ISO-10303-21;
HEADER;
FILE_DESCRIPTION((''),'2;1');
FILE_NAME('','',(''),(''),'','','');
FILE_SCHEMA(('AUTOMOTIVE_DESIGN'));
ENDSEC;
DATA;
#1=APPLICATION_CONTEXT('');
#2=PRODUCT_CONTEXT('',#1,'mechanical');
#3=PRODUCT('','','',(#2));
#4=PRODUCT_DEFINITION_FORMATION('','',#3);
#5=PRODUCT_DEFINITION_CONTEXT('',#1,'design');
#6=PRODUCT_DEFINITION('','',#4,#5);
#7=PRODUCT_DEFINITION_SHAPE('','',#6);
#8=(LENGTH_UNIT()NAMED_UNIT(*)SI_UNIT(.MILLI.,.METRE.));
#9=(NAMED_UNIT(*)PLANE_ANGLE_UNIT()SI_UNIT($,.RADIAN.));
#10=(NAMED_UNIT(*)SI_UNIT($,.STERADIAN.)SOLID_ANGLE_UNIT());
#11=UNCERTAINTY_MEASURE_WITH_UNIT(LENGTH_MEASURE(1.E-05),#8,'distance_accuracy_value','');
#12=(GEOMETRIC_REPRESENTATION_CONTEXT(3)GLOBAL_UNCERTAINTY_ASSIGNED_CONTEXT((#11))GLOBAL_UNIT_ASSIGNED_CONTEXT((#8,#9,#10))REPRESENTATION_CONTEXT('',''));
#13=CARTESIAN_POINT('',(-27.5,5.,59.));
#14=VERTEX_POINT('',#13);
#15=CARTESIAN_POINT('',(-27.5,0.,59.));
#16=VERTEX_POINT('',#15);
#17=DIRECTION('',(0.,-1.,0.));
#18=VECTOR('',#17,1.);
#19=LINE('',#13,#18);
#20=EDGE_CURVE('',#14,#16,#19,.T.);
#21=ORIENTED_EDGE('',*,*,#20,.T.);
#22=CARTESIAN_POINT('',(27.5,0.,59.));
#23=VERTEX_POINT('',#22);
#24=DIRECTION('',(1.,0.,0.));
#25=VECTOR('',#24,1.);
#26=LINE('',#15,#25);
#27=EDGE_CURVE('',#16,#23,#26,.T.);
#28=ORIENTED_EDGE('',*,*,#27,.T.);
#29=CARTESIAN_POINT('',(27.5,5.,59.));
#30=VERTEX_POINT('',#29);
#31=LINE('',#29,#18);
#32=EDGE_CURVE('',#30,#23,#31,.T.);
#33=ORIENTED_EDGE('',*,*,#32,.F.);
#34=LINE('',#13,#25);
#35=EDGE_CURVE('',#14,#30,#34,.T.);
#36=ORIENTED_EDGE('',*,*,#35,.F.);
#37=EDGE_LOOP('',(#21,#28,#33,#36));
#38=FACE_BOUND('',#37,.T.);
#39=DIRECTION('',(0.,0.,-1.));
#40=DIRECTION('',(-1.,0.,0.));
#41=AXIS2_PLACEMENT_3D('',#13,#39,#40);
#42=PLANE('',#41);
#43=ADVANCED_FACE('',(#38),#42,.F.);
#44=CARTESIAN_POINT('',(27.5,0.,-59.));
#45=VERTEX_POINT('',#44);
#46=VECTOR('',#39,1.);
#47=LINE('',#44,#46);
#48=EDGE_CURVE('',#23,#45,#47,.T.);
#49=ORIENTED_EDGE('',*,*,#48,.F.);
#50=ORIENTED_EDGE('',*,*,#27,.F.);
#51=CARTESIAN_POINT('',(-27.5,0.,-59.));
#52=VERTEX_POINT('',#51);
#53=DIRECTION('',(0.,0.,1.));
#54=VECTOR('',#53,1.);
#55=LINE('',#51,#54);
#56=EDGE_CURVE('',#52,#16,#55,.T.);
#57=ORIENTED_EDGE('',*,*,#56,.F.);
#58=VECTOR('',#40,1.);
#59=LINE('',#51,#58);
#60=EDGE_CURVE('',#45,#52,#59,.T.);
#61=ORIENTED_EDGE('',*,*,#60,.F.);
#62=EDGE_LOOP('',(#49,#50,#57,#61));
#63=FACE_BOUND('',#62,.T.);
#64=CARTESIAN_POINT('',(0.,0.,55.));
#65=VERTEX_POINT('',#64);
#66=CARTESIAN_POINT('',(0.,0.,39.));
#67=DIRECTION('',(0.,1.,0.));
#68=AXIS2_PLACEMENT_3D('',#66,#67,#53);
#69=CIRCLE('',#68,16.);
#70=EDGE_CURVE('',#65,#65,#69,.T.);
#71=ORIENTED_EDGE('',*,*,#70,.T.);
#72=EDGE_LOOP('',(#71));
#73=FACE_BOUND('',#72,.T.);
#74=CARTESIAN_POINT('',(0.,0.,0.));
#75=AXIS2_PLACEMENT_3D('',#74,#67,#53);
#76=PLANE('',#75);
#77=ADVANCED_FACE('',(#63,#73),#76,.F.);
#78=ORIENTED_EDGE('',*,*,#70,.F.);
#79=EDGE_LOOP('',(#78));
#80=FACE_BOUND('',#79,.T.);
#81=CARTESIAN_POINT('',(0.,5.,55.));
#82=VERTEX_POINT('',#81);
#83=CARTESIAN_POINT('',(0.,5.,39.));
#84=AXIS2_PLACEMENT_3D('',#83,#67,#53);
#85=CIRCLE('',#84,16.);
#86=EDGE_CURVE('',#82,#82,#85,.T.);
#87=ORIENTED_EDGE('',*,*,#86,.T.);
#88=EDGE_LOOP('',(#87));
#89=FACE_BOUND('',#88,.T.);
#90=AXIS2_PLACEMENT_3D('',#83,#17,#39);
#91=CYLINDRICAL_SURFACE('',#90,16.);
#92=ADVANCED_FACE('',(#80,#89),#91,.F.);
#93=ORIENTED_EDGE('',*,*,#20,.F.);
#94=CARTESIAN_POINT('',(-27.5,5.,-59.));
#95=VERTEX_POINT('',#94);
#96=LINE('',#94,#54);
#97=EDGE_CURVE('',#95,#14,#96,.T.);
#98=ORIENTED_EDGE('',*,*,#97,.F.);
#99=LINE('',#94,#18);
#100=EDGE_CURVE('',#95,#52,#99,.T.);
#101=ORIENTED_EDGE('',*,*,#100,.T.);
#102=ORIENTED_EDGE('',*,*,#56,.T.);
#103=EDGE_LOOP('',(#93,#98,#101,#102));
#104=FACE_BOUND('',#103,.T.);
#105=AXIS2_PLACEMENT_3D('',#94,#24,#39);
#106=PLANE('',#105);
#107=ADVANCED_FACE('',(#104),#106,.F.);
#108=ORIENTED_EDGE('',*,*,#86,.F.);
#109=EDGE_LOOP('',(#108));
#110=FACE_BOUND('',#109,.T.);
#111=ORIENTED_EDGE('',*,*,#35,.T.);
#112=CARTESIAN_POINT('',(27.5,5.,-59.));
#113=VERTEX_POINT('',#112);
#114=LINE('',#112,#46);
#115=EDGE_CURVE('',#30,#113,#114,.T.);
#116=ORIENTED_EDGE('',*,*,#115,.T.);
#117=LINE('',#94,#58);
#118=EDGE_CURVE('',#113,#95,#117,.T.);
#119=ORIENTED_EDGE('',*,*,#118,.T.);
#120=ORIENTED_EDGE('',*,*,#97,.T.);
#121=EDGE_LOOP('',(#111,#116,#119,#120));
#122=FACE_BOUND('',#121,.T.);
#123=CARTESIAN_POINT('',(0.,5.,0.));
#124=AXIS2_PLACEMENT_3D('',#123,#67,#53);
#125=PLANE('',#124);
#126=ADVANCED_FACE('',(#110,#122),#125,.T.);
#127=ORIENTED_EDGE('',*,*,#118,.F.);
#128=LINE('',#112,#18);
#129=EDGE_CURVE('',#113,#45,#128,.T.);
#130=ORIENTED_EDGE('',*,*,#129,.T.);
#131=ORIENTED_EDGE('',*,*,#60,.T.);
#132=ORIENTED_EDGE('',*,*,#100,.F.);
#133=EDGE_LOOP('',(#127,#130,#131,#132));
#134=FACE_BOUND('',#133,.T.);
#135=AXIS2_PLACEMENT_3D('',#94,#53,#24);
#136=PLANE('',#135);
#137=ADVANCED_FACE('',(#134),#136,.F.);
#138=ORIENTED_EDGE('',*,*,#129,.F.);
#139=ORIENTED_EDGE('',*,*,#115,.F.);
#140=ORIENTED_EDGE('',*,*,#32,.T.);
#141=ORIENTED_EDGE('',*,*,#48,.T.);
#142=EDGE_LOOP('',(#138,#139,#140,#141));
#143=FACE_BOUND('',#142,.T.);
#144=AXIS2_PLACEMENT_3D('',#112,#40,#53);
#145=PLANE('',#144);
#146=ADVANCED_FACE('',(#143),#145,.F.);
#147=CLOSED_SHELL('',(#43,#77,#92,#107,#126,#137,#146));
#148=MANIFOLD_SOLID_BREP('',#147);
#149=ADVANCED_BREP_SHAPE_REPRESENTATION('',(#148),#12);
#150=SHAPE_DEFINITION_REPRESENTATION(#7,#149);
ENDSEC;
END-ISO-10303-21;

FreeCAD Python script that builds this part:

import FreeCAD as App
import Part
import Sketcher
from FreeCAD import Vector
Q = App.Units.Quantity

doc = App.newDocument("Part")
params = doc.addObject("Spreadsheet::Sheet", "Params")
for row, (alias, value) in enumerate([
    ("sketch1_diameter", "32 mm"),
    ("sketch1_width", "55 mm"),
    ("sketch1_height", "118 mm"),
    ("pad1_length", "5 mm"),
], start=1):
    params.set(f"A{row}", alias)
    params.set(f"B{row}", "=" + value)
    params.setAlias(f"B{row}", alias)

body = doc.addObject("PartDesign::Body", "Body")

sketch1 = body.newObject("Sketcher::SketchObject", "Sketch")
sketch1.AttachmentSupport = (doc.getObject("XZ_Plane"), [""])
sketch1.MapMode = "FlatFace"
sketch1.addGeometry([
    Part.LineSegment(Vector(-27.5, -59, 0), Vector(-27.5, 59, 0)),
    Part.LineSegment(Vector(-27.5, 59, 0), Vector(27.5, 59, 0)),
    Part.LineSegment(Vector(27.5, 59, 0), Vector(27.5, -59, 0)),
    Part.LineSegment(Vector(27.5, -59, 0), Vector(-27.5, -59, 0)),
    Part.Circle(Vector(0, 39, 0), Vector(0, 0, 1), 16),
], False)
sketch1.addConstraint([
    Sketcher.Constraint("Coincident", 0, 2, 1, 1),
    Sketcher.Constraint("Coincident", 1, 2, 2, 1),
    Sketcher.Constraint("Coincident", 2, 2, 3, 1),
    Sketcher.Constraint("Coincident", 3, 2, 0, 1),
    Sketcher.Constraint("Vertical", 0),
    Sketcher.Constraint("Horizontal", 1),
    Sketcher.Constraint("Vertical", 2),
    Sketcher.Constraint("Horizontal", 3),
    Sketcher.Constraint("Symmetric", 0, 2, 2, 2, -1, 1),
    Sketcher.Constraint("PointOnObject", 4, 3, -2),
    Sketcher.Constraint("Diameter", 4, Q("32 mm")),
    Sketcher.Constraint("DistanceX", 1, 1, 1, 2, Q("55 mm")),
    Sketcher.Constraint("DistanceY", 0, 1, 0, 2, Q("118 mm")),
    Sketcher.Constraint("DistanceY", -1, 1, 4, 3, Q("39 mm")),
])
sketch1.setExpression("Constraints[10]", "Params.sketch1_diameter")
sketch1.setExpression("Constraints[11]", "Params.sketch1_width")
sketch1.setExpression("Constraints[12]", "Params.sketch1_height")
pad1 = body.newObject("PartDesign::Pad", "Pad")
pad1.Profile = sketch1
pad1.setExpression("Length", "Params.pad1_length")
pad1.Reversed = True

doc.recompute()
